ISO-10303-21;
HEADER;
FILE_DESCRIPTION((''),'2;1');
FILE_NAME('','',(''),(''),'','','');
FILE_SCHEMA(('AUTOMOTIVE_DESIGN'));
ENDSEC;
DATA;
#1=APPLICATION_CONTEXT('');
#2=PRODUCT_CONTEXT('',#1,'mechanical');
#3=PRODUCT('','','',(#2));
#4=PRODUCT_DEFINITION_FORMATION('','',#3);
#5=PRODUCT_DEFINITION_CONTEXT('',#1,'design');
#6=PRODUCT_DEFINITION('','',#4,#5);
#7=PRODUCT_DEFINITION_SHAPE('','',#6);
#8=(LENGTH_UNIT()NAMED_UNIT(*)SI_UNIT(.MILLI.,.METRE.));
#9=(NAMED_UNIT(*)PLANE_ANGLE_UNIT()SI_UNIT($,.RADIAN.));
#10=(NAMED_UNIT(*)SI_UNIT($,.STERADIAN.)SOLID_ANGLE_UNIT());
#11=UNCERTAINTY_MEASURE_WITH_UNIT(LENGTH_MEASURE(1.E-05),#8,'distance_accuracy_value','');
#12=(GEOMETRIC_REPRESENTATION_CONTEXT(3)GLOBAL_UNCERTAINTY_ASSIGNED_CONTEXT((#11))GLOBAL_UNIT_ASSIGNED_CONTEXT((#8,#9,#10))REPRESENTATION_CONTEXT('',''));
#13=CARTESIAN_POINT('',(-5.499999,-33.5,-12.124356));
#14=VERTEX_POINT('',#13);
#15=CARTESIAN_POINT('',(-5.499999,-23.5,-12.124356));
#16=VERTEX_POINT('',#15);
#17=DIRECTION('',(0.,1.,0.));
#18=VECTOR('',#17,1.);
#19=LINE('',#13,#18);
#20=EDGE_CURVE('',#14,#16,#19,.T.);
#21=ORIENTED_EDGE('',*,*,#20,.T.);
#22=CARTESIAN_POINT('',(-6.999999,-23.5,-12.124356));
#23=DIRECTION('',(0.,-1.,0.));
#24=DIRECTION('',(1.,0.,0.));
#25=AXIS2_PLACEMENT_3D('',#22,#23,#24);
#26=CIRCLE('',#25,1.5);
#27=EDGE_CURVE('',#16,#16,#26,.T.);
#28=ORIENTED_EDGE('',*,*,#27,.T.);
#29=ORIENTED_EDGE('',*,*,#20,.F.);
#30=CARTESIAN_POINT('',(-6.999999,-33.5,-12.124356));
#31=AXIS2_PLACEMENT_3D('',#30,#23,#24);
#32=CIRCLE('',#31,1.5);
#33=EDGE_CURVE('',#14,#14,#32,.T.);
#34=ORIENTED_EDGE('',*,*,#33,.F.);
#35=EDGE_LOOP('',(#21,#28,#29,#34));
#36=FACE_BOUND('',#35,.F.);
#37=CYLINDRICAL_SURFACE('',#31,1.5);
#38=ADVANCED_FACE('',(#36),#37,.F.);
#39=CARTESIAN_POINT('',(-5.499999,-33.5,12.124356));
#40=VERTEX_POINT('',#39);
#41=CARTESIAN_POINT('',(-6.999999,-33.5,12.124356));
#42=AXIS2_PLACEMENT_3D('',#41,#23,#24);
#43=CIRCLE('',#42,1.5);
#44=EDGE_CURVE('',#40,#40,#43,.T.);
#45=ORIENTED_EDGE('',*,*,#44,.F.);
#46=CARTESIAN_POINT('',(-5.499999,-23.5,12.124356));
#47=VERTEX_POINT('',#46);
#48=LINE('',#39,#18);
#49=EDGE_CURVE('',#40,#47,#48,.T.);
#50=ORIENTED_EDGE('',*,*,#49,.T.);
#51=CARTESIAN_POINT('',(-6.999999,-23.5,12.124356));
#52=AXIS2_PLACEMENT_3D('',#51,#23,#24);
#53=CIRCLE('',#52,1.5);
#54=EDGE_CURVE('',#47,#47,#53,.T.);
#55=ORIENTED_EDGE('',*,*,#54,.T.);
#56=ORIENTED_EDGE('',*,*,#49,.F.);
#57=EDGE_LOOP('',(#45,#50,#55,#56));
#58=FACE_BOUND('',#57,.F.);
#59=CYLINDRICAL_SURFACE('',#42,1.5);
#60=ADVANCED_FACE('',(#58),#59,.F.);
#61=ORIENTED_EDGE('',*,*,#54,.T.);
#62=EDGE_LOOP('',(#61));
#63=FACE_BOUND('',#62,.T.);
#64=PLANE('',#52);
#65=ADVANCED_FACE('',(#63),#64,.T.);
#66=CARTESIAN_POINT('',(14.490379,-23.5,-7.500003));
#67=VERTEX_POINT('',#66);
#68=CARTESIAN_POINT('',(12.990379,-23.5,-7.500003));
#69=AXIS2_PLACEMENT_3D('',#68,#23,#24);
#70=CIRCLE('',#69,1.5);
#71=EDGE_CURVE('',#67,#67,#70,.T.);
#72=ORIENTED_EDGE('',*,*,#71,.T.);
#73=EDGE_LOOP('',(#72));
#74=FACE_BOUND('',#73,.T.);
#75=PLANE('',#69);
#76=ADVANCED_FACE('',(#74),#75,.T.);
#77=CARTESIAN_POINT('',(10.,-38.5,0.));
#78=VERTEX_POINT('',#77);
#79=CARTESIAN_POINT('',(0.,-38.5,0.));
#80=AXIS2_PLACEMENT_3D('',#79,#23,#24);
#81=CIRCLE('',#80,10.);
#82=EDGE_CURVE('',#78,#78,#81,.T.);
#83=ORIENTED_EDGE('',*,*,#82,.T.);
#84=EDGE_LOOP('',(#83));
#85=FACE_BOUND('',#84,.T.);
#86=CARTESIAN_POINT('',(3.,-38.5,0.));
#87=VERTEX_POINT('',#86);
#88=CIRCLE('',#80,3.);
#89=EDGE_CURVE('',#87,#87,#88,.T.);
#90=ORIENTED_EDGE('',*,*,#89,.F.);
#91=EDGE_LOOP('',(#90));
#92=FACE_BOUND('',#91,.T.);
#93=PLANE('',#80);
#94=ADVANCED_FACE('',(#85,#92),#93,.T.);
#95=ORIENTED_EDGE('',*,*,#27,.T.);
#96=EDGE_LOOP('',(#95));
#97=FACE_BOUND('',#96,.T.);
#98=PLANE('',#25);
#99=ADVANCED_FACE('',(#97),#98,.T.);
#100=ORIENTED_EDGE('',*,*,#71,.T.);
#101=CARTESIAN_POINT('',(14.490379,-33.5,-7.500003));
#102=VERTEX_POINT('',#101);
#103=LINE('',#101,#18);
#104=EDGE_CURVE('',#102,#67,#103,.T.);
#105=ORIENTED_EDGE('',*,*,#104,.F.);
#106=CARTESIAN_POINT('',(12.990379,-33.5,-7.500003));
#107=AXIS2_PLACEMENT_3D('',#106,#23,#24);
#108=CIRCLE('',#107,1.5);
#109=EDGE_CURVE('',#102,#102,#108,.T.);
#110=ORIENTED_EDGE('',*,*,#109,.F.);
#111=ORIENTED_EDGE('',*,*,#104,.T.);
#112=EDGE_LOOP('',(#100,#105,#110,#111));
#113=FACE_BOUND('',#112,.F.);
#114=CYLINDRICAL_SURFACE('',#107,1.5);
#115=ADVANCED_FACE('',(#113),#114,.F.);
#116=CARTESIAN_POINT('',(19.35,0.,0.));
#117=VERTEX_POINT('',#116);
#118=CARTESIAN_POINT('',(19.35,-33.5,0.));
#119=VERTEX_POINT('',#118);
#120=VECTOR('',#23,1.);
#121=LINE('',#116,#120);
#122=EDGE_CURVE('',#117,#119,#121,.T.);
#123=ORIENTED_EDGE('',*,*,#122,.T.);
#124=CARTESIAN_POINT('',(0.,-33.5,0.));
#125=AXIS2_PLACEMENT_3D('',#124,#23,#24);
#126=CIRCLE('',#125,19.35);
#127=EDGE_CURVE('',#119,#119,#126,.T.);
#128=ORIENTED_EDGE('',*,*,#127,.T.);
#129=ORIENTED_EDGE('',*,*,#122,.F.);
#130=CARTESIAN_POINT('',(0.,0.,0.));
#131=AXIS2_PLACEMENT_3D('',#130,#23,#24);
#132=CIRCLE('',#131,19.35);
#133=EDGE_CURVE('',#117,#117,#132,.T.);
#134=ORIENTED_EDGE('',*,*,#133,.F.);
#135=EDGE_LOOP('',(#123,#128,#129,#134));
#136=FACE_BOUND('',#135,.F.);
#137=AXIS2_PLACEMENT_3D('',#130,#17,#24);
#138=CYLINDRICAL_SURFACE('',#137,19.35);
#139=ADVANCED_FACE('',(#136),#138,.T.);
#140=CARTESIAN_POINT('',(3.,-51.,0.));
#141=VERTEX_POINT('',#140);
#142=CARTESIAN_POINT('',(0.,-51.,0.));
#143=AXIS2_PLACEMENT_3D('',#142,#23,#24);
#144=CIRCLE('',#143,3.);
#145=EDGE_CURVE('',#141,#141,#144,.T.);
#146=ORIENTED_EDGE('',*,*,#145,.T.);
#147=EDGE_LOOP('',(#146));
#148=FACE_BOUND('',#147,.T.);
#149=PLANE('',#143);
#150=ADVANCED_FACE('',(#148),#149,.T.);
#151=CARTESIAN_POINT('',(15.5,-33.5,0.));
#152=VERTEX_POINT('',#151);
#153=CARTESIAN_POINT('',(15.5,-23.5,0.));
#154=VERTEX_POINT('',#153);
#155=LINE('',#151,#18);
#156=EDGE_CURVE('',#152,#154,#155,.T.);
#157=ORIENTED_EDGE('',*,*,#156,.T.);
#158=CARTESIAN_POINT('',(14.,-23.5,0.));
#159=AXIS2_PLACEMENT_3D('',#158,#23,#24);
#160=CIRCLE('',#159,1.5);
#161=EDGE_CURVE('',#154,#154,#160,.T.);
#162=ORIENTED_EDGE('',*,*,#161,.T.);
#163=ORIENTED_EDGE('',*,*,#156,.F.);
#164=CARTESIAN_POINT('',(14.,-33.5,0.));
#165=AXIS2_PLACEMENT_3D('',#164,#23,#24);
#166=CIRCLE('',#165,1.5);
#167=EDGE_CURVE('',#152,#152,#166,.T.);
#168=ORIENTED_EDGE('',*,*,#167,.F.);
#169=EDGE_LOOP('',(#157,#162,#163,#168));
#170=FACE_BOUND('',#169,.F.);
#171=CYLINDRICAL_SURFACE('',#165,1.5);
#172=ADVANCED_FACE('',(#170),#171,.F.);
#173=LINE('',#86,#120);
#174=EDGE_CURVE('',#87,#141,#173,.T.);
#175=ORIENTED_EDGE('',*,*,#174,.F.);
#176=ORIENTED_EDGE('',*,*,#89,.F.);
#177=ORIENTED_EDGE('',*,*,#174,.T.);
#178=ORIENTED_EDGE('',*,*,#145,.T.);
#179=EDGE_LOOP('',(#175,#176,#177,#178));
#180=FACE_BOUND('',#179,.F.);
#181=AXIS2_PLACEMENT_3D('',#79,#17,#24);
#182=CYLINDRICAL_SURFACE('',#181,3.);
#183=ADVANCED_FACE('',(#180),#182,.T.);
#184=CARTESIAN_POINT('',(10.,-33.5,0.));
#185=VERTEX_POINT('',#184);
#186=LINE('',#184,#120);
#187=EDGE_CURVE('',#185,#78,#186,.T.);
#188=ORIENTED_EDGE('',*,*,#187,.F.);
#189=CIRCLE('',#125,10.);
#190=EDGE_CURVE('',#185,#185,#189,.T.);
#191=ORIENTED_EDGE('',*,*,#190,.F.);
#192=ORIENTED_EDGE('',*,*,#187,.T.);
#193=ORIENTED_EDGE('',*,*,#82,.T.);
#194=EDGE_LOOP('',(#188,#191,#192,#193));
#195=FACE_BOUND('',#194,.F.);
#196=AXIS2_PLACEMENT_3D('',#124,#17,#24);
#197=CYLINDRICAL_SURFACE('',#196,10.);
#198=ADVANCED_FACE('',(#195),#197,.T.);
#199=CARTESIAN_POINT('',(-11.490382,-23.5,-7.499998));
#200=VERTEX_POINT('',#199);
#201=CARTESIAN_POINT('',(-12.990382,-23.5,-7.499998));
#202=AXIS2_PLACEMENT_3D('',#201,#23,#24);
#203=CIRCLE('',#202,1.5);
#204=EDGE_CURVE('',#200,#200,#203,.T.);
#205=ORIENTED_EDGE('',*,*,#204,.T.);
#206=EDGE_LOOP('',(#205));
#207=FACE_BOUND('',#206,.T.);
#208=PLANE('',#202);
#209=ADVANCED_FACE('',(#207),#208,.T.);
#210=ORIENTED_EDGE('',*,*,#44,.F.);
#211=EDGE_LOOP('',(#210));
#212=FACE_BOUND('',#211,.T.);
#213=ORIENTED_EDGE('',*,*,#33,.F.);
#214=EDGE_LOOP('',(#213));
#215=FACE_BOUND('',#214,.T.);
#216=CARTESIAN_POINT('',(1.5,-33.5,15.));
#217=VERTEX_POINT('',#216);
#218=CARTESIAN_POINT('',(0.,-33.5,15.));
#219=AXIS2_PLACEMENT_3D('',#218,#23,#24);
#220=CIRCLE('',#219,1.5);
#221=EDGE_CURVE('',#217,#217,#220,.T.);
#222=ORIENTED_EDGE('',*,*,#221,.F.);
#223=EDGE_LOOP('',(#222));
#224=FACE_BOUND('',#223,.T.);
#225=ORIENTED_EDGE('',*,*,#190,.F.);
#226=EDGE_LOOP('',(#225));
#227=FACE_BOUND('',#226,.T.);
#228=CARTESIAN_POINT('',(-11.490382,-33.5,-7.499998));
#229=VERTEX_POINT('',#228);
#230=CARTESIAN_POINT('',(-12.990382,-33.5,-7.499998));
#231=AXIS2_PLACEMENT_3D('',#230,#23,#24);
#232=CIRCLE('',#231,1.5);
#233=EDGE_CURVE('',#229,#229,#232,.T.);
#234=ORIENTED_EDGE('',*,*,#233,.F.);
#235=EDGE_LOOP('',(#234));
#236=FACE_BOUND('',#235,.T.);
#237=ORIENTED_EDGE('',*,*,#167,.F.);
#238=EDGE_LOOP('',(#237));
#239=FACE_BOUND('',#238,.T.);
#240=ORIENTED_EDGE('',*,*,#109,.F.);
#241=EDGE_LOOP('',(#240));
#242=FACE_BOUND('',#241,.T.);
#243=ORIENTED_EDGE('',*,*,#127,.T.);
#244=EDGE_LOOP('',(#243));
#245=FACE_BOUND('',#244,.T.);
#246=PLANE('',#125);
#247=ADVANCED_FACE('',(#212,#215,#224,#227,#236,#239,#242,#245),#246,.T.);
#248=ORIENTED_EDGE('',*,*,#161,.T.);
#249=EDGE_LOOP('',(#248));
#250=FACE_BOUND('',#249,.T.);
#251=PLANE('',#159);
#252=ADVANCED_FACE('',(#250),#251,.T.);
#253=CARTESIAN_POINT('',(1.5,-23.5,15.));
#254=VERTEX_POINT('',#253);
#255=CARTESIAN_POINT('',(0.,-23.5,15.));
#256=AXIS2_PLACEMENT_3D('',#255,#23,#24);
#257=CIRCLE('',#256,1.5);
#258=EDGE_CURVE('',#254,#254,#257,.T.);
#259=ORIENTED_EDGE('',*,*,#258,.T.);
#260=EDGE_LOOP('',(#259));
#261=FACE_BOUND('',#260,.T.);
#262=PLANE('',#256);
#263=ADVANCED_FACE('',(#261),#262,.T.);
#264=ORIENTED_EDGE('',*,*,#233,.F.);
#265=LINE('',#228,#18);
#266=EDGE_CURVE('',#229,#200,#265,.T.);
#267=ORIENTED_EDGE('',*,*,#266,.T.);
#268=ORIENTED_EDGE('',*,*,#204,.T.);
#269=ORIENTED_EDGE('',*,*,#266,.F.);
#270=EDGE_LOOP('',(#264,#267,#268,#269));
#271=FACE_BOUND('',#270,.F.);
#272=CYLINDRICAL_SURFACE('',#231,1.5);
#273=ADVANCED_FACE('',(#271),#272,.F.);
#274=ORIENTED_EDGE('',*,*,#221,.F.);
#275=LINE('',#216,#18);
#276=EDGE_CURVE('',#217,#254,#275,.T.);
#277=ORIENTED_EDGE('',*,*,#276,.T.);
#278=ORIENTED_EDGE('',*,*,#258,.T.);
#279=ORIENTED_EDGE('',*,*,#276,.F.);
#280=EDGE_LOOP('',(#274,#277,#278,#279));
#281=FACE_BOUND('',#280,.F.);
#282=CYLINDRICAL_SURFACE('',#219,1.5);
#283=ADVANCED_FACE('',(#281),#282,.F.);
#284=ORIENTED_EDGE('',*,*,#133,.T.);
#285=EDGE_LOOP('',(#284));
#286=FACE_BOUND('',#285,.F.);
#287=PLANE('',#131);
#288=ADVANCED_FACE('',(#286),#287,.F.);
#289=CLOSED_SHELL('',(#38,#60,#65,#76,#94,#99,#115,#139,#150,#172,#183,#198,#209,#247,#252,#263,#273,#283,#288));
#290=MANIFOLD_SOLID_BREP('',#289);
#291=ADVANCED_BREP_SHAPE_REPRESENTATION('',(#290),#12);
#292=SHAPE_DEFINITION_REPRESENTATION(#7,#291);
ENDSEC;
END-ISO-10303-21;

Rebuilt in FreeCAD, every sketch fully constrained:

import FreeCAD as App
import Part
import Sketcher

doc = App.newDocument("Part")
params = doc.addObject("Spreadsheet::Sheet", "Params")
for row, (alias, value) in enumerate([
    ("sketch1_diameter", "38.7 mm"),
    ("pad1_length", "33.5 mm"),
    ("sketch2_diameter", "20 mm"),
    ("pad2_length", "5 mm"),
    ("sketch3_diameter", "6 mm"),
    ("pad3_length", "12.5 mm"),
    ("sketch4_diameter", "3 mm"),
    ("pocket1_length", "10 mm"),
], start=1):
    params.set(f"A{row}", alias)
    params.set(f"B{row}", "=" + value)
    params.setAlias(f"B{row}", alias)

body = doc.addObject("PartDesign::Body", "Body")

# Sketch on XZ plane
sketch1 = body.newObject("Sketcher::SketchObject", "Sketch")
sketch1.AttachmentSupport = (doc.getObject("XZ_Plane"), [""])
sketch1.MapMode = "FlatFace"
sketch1.addGeometry(Part.Circle(App.Vector(0, 0, 0), App.Vector(0, 0, 1), 19.35), False)
sketch1.addConstraint(Sketcher.Constraint("Coincident", 0, 3, -1, 1))
sketch1.addConstraint(Sketcher.Constraint("Diameter", 0, 38.7))
sketch1.setExpression("Constraints[1]", "Params.sketch1_diameter")
pad1 = body.newObject("PartDesign::Pad", "Pad")
pad1.Profile = sketch1
pad1.setExpression("Length", "Params.pad1_length")

# Sketch on XZ plane
sketch2 = body.newObject("Sketcher::SketchObject", "Sketch001")
sketch2.AttachmentSupport = (doc.getObject("XZ_Plane"), [""])
sketch2.MapMode = "FlatFace"
sketch2.AttachmentOffset = App.Placement(App.Vector(0, 0, 33.5), App.Rotation())
sketch2.addGeometry(Part.Circle(App.Vector(0, 0, 0), App.Vector(0, 0, 1), 10), False)
sketch2.addConstraint(Sketcher.Constraint("Coincident", 0, 3, -1, 1))
sketch2.addConstraint(Sketcher.Constraint("Diameter", 0, 20.0))
sketch2.setExpression("Constraints[1]", "Params.sketch2_diameter")
pad2 = body.newObject("PartDesign::Pad", "Pad001")
pad2.Profile = sketch2
pad2.setExpression("Length", "Params.pad2_length")

# Sketch on XZ plane
sketch3 = body.newObject("Sketcher::SketchObject", "Sketch002")
sketch3.AttachmentSupport = (doc.getObject("XZ_Plane"), [""])
sketch3.MapMode = "FlatFace"
sketch3.AttachmentOffset = App.Placement(App.Vector(0, 0, 38.5), App.Rotation())
sketch3.addGeometry(Part.Circle(App.Vector(0, 0, 0), App.Vector(0, 0, 1), 3), False)
sketch3.addConstraint(Sketcher.Constraint("Coincident", 0, 3, -1, 1))
sketch3.addConstraint(Sketcher.Constraint("Diameter", 0, 6.0))
sketch3.setExpression("Constraints[1]", "Params.sketch3_diameter")
pad3 = body.newObject("PartDesign::Pad", "Pad002")
pad3.Profile = sketch3
pad3.setExpression("Length", "Params.pad3_length")

# Sketch on XZ plane
sketch4 = body.newObject("Sketcher::SketchObject", "Sketch003")
sketch4.AttachmentSupport = (doc.getObject("XZ_Plane"), [""])
sketch4.MapMode = "FlatFace"
sketch4.AttachmentOffset = App.Placement(App.Vector(0, 0, 33.5), App.Rotation())
sketch4.addGeometry(Part.Circle(App.Vector(14, 0, 0), App.Vector(0, 0, 1), 1.5), False)
sketch4.addGeometry(Part.Circle(App.Vector(-12.990382, -7.499998, 0), App.Vector(0, 0, 1), 1.5), False)
sketch4.addGeometry(Part.Circle(App.Vector(-6.999999, -12.124356, 0), App.Vector(0, 0, 1), 1.5), False)
sketch4.addGeometry(Part.Circle(App.Vector(12.990379, -7.500003, 0), App.Vector(0, 0, 1), 1.5), False)
sketch4.addGeometry(Part.Circle(App.Vector(0, 15, 0), App.Vector(0, 0, 1), 1.5), False)
sketch4.addGeometry(Part.Circle(App.Vector(-6.999999, 12.124356, 0), App.Vector(0, 0, 1), 1.5), False)
sketch4.addConstraint(Sketcher.Constraint("Equal", 0, 1))
sketch4.addConstraint(Sketcher.Constraint("Equal", 1, 2))
sketch4.addConstraint(Sketcher.Constraint("Equal", 2, 3))
sketch4.addConstraint(Sketcher.Constraint("Equal", 3, 4))
sketch4.addConstraint(Sketcher.Constraint("Equal", 4, 5))
sketch4.addConstraint(Sketcher.Constraint("Symmetric", 1, 3, 3, 3, -2))
sketch4.addConstraint(Sketcher.Constraint("Symmetric", 2, 3, 5, 3, -1))
sketch4.addConstraint(Sketcher.Constraint("PointOnObject", 0, 3, -1))
sketch4.addConstraint(Sketcher.Constraint("PointOnObject", 4, 3, -2))
sketch4.addConstraint(Sketcher.Constraint("Diameter", 0, 3.0))
sketch4.addConstraint(Sketcher.Constraint("DistanceX", -1, 1, 0, 3, 14.0))
sketch4.addConstraint(Sketcher.Constraint("DistanceX", 2, 3, -1, 1, 6.999999))
sketch4.addConstraint(Sketcher.Constraint("DistanceY", -1, 1, 4, 3, 15.0))
sketch4.addConstraint(Sketcher.Constraint("DistanceX", -1, 1, 3, 3, 12.990379))
sketch4.addConstraint(Sketcher.Constraint("DistanceY", 2, 3, 1, 3, 4.624358))
sketch4.addConstraint(Sketcher.Constraint("DistanceY", 3, 3, 5, 3, 19.624359))
sketch4.setExpression("Constraints[9]", "Params.sketch4_diameter")
pocket1 = body.newObject("PartDesign::Pocket", "Pocket")
pocket1.Profile = sketch4
pocket1.setExpression("Length", "Params.pocket1_length")

doc.recompute()
